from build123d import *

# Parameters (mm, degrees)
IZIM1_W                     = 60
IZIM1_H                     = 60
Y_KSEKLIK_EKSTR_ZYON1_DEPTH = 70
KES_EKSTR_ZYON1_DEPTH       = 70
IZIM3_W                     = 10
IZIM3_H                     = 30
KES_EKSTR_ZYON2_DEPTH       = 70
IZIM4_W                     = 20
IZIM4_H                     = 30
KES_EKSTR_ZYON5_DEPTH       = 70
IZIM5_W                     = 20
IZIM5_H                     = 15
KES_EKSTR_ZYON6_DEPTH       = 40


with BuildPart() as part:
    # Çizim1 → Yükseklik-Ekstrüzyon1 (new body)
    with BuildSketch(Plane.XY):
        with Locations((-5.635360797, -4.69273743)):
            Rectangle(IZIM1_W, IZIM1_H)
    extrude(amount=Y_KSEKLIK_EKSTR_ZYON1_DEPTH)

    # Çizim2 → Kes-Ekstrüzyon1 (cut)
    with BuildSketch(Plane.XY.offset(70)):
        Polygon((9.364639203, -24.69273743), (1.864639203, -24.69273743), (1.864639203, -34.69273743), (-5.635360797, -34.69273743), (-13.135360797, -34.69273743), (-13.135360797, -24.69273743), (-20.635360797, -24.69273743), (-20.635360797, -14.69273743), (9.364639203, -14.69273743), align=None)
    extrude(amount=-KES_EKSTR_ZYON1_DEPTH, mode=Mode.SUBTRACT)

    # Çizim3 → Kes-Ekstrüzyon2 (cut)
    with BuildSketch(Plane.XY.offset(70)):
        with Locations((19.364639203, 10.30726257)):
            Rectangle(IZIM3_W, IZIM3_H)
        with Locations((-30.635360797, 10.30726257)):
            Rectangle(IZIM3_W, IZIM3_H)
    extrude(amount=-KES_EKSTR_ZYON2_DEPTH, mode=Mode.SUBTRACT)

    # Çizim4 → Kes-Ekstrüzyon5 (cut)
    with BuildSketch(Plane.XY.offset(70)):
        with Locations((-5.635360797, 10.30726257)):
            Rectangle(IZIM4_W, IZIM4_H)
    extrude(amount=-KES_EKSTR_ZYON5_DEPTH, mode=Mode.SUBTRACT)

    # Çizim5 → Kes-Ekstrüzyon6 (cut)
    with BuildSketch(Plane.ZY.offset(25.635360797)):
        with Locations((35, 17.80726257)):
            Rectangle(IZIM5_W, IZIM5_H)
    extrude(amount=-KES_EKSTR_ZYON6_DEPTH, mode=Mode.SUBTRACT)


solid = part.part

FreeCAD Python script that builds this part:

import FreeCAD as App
import Part
import Sketcher
from FreeCAD import Vector
Q = App.Units.Quantity

doc = App.newDocument("Part")
body = doc.addObject("PartDesign::Body", "Body")

# Sketch on XY plane
sketch1 = doc.addObject("Sketcher::SketchObject", "Sketch")
body.addObject(sketch1)
sketch1.AttachmentSupport = (doc.XY_Plane, [""])
sketch1.MapMode = "FlatFace"
sketch1.addGeometry([
    Part.LineSegment(Vector(-35.635361, 25.307263, 0), Vector(-35.635361, -34.692737, 0)),
    Part.LineSegment(Vector(-35.635361, -34.692737, 0), Vector(24.364639, -34.692737, 0)),
    Part.LineSegment(Vector(24.364639, -34.692737, 0), Vector(24.364639, 25.307263, 0)),
    Part.LineSegment(Vector(24.364639, 25.307263, 0), Vector(-35.635361, 25.307263, 0)),
], False)
sketch1.addConstraint([
    Sketcher.Constraint("Coincident", 0, 2, 1, 1),
    Sketcher.Constraint("Coincident", 1, 2, 2, 1),
    Sketcher.Constraint("Coincident", 2, 2, 3, 1),
    Sketcher.Constraint("Coincident", 3, 2, 0, 1),
    Sketcher.Constraint("Vertical", 0),
    Sketcher.Constraint("Horizontal", 1),
    Sketcher.Constraint("Vertical", 2),
    Sketcher.Constraint("Horizontal", 3),
    Sketcher.Constraint("Equal", 3, 0),
    Sketcher.Constraint("DistanceX", 1, 1, 1, 2, Q("60 mm")),
    Sketcher.Constraint("DistanceX", 0, 2, -1, 1, Q("35.635361 mm")),
    Sketcher.Constraint("DistanceY", 0, 2, -1, 1, Q("34.692737 mm")),
])
pad1 = doc.addObject("PartDesign::Pad", "Pad")
body.addObject(pad1)
pad1.Profile = sketch1
pad1.Length = 70

# Sketch on XY plane
sketch2 = doc.addObject("Sketcher::SketchObject", "Sketch001")
body.addObject(sketch2)
sketch2.AttachmentSupport = (doc.XY_Plane, [""])
sketch2.MapMode = "FlatFace"
sketch2.AttachmentOffset = App.Placement(Vector(0, 0, 70), App.Rotation())
sketch2.addGeometry([
    Part.LineSegment(Vector(1.864639, -24.692737, 0), Vector(9.364639, -24.692737, 0)),  # 0
    Part.LineSegment(Vector(9.364639, -24.692737, 0), Vector(9.364639, -14.692737, 0)),  # 1
    Part.LineSegment(Vector(9.364639, -14.692737, 0), Vector(-20.635361, -14.692737, 0)),  # 2
    Part.LineSegment(Vector(-20.635361, -14.692737, 0), Vector(-20.635361, -24.692737, 0)),  # 3
    Part.LineSegment(Vector(-20.635361, -24.692737, 0), Vector(-13.135361, -24.692737, 0)),  # 4
    Part.LineSegment(Vector(-13.135361, -24.692737, 0), Vector(-13.135361, -34.692737, 0)),  # 5
    Part.LineSegment(Vector(-13.135361, -34.692737, 0), Vector(1.864639, -34.692737, 0)),  # 6
    Part.LineSegment(Vector(1.864639, -34.692737, 0), Vector(1.864639, -24.692737, 0)),  # 7
], False)
sketch2.addConstraint([
    Sketcher.Constraint("Coincident", 0, 2, 1, 1),
    Sketcher.Constraint("Coincident", 1, 2, 2, 1),
    Sketcher.Constraint("Coincident", 2, 2, 3, 1),
    Sketcher.Constraint("Coincident", 3, 2, 4, 1),
    Sketcher.Constraint("Coincident", 4, 2, 5, 1),
    Sketcher.Constraint("Coincident", 5, 2, 6, 1),
    Sketcher.Constraint("Coincident", 6, 2, 7, 1),
    Sketcher.Constraint("Coincident", 7, 2, 0, 1),
    Sketcher.Constraint("Horizontal", 0),
    Sketcher.Constraint("Vertical", 1),
    Sketcher.Constraint("Horizontal", 2),
    Sketcher.Constraint("Vertical", 3),
    Sketcher.Constraint("Horizontal", 4),
    Sketcher.Constraint("Vertical", 5),
    Sketcher.Constraint("Horizontal", 6),
    Sketcher.Constraint("Vertical", 7),
    Sketcher.Constraint("Horizontal", 0, 2, 3, 2),
    Sketcher.Constraint("Equal", 0, 4),
    Sketcher.Constraint("Equal", 3, 5),
    Sketcher.Constraint("DistanceX", 2, 2, 2, 1, Q("30 mm")),
    Sketcher.Constraint("DistanceX", 6, 1, 6, 2, Q("15 mm")),
    Sketcher.Constraint("DistanceY", 1, 1, 1, 2, Q("10 mm")),
    Sketcher.Constraint("DistanceX", -1, 1, 0, 2, Q("9.364639 mm")),
    Sketcher.Constraint("DistanceY", 0, 2, -1, 1, Q("24.692737 mm")),
])
pocket1 = doc.addObject("PartDesign::Pocket", "Pocket")
body.addObject(pocket1)
pocket1.Profile = sketch2
pocket1.Length = 70

# Sketch on XY plane
sketch3 = doc.addObject("Sketcher::SketchObject", "Sketch002")
body.addObject(sketch3)
sketch3.AttachmentSupport = (doc.XY_Plane, [""])
sketch3.MapMode = "FlatFace"
sketch3.AttachmentOffset = App.Placement(Vector(0, 0, 70), App.Rotation())
sketch3.addGeometry([
    Part.LineSegment(Vector(14.364639, 25.307263, 0), Vector(14.364639, -4.692737, 0)),  # 0
    Part.LineSegment(Vector(14.364639, -4.692737, 0), Vector(24.364639, -4.692737, 0)),  # 1
    Part.LineSegment(Vector(24.364639, -4.692737, 0), Vector(24.364639, 25.307263, 0)),  # 2
    Part.LineSegment(Vector(24.364639, 25.307263, 0), Vector(14.364639, 25.307263, 0)),  # 3
    Part.LineSegment(Vector(-35.635361, 25.307263, 0), Vector(-35.635361, -4.692737, 0)),  # 4
    Part.LineSegment(Vector(-35.635361, -4.692737, 0), Vector(-25.635361, -4.692737, 0)),  # 5
    Part.LineSegment(Vector(-25.635361, -4.692737, 0), Vector(-25.635361, 25.307263, 0)),  # 6
    Part.LineSegment(Vector(-25.635361, 25.307263, 0), Vector(-35.635361, 25.307263, 0)),  # 7
], False)
sketch3.addConstraint([
    Sketcher.Constraint("Coincident", 0, 2, 1, 1),
    Sketcher.Constraint("Coincident", 1, 2, 2, 1),
    Sketcher.Constraint("Coincident", 2, 2, 3, 1),
    Sketcher.Constraint("Coincident", 3, 2, 0, 1),
    Sketcher.Constraint("Coincident", 4, 2, 5, 1),
    Sketcher.Constraint("Coincident", 5, 2, 6, 1),
    Sketcher.Constraint("Coincident", 6, 2, 7, 1),
    Sketcher.Constraint("Coincident", 7, 2, 4, 1),
    Sketcher.Constraint("Vertical", 0),
    Sketcher.Constraint("Horizontal", 1),
    Sketcher.Constraint("Vertical", 2),
    Sketcher.Constraint("Horizontal", 3),
    Sketcher.Constraint("Vertical", 4),
    Sketcher.Constraint("Horizontal", 5),
    Sketcher.Constraint("Vertical", 6),
    Sketcher.Constraint("Horizontal", 7),
    Sketcher.Constraint("Horizontal", 1, 2, 4, 2),
    Sketcher.Constraint("Horizontal", 3, 2, 6, 2),
    Sketcher.Constraint("Equal", 3, 5),
    Sketcher.Constraint("DistanceX", 1, 1, 1, 2, Q("10 mm")),
    Sketcher.Constraint("DistanceY", 0, 2, 0, 1, Q("30 mm")),
    Sketcher.Constraint("DistanceX", 4, 2, 0, 2, Q("50 mm")),
    Sketcher.Constraint("DistanceX", -1, 1, 0, 2, Q("14.364639 mm")),
    Sketcher.Constraint("DistanceY", 0, 2, -1, 1, Q("4.692737 mm")),
])
pocket2 = doc.addObject("PartDesign::Pocket", "Pocket001")
body.addObject(pocket2)
pocket2.Profile = sketch3
pocket2.Length = 70

# Sketch on XY plane
sketch4 = doc.addObject("Sketcher::SketchObject", "Sketch003")
body.addObject(sketch4)
sketch4.AttachmentSupport = (doc.XY_Plane, [""])
sketch4.MapMode = "FlatFace"
sketch4.AttachmentOffset = App.Placement(Vector(0, 0, 70), App.Rotation())
sketch4.addGeometry([
    Part.LineSegment(Vector(-15.635361, 25.307263, 0), Vector(-15.635361, -4.692737, 0)),
    Part.LineSegment(Vector(-15.635361, -4.692737, 0), Vector(4.364639, -4.692737, 0)),
    Part.LineSegment(Vector(4.364639, -4.692737, 0), Vector(4.364639, 25.307263, 0)),
    Part.LineSegment(Vector(4.364639, 25.307263, 0), Vector(-15.635361, 25.307263, 0)),
], False)
sketch4.addConstraint([
    Sketcher.Constraint("Coincident", 0, 2, 1, 1),
    Sketcher.Constraint("Coincident", 1, 2, 2, 1),
    Sketcher.Constraint("Coincident", 2, 2, 3, 1),
    Sketcher.Constraint("Coincident", 3, 2, 0, 1),
    Sketcher.Constraint("Vertical", 0),
    Sketcher.Constraint("Horizontal", 1),
    Sketcher.Constraint("Vertical", 2),
    Sketcher.Constraint("Horizontal", 3),
    Sketcher.Constraint("DistanceX", 1, 1, 1, 2, Q("20 mm")),
    Sketcher.Constraint("DistanceY", 0, 2, 0, 1, Q("30 mm")),
    Sketcher.Constraint("DistanceX", 0, 2, -1, 1, Q("15.635361 mm")),
    Sketcher.Constraint("DistanceY", 0, 2, -1, 1, Q("4.692737 mm")),
])
pocket3 = doc.addObject("PartDesign::Pocket", "Pocket002")
body.addObject(pocket3)
pocket3.Profile = sketch4
pocket3.Length = 70

# Sketch on YZ plane
sketch5 = doc.addObject("Sketcher::SketchObject", "Sketch004")
body.addObject(sketch5)
sketch5.AttachmentSupport = (doc.YZ_Plane, [""])
sketch5.MapMode = "FlatFace"
sketch5.AttachmentOffset = App.Placement(Vector(0, 0, -25.635361), App.Rotation())
sketch5.addGeometry([
    Part.LineSegment(Vector(25.307263, 25, 0), Vector(10.307263, 25, 0)),
    Part.LineSegment(Vector(10.307263, 25, 0), Vector(10.307263, 45, 0)),
    Part.LineSegment(Vector(10.307263, 45, 0), Vector(25.307263, 45, 0)),
    Part.LineSegment(Vector(25.307263, 45, 0), Vector(25.307263, 25, 0)),
], False)
sketch5.addConstraint([
    Sketcher.Constraint("Coincident", 0, 2, 1, 1),
    Sketcher.Constraint("Coincident", 1, 2, 2, 1),
    Sketcher.Constraint("Coincident", 2, 2, 3, 1),
    Sketcher.Constraint("Coincident", 3, 2, 0, 1),
    Sketcher.Constraint("Horizontal", 0),
    Sketcher.Constraint("Vertical", 1),
    Sketcher.Constraint("Horizontal", 2),
    Sketcher.Constraint("Vertical", 3),
    Sketcher.Constraint("DistanceX", 0, 2, 0, 1, Q("15 mm")),
    Sketcher.Constraint("DistanceY", 1, 1, 1, 2, Q("20 mm")),
    Sketcher.Constraint("DistanceY", -1, 1, 0, 2, Q("25 mm")),
    Sketcher.Constraint("DistanceX", -1, 1, 0, 2, Q("10.307263 mm")),
])
pocket4 = doc.addObject("PartDesign::Pocket", "Pocket003")
body.addObject(pocket4)
pocket4.Profile = sketch5
pocket4.Length = 40
pocket4.Reversed = True

doc.recompute()
